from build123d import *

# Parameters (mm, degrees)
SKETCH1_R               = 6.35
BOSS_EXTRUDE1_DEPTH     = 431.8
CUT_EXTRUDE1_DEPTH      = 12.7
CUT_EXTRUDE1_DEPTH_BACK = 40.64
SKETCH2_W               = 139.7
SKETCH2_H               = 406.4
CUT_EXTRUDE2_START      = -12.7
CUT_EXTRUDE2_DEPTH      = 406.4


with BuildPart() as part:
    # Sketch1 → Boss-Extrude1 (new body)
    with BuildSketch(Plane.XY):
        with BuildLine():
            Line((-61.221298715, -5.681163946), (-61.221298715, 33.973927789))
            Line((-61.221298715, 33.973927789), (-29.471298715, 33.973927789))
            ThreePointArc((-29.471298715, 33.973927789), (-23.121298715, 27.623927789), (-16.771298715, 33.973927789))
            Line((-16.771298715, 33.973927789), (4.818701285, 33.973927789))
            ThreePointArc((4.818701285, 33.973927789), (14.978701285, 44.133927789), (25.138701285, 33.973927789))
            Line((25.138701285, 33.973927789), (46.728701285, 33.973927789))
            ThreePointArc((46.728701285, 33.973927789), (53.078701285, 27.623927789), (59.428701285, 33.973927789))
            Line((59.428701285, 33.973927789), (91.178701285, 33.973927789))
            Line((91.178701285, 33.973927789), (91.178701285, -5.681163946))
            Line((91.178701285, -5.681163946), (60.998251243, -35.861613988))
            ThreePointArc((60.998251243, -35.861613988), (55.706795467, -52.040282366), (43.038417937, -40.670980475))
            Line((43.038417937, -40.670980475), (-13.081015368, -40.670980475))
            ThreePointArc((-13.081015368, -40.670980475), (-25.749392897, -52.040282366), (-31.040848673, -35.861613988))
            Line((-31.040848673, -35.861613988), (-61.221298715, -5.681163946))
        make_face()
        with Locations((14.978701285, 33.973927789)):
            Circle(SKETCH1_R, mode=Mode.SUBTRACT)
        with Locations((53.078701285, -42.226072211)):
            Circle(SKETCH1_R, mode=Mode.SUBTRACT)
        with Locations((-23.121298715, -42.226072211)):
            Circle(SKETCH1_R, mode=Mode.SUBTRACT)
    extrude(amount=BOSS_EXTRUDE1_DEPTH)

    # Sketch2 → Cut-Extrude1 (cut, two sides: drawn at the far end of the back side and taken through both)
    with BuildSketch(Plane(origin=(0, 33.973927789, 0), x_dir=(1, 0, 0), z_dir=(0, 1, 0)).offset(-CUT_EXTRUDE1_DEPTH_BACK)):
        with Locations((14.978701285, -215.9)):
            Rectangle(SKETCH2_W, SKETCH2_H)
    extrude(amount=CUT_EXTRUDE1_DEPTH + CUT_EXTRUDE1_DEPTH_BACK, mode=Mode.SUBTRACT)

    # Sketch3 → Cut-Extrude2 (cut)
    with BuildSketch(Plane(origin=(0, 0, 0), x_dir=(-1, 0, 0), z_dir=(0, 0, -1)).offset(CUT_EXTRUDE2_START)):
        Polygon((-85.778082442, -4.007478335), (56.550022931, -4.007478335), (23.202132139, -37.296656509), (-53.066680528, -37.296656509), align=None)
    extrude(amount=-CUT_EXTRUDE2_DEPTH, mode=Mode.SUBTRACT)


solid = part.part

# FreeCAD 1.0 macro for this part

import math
import FreeCAD as App
import Part
import Sketcher
from FreeCAD import Vector
Q = App.Units.Quantity


def add_polygon(sketch, points):
    """Adds a closed chain of lines whose ends are joined by coincident constraints."""
    first, n = sketch.GeometryCount, len(points)
    for a, b in zip(points, points[1:] + points[:1]):
        sketch.addGeometry(Part.LineSegment(App.Vector(*a, 0), App.Vector(*b, 0)), False)
    for i in range(n):
        sketch.addConstraint(Sketcher.Constraint("Coincident", first + i, 2, first + (i + 1) % n, 1))

doc = App.newDocument("Part")
params = doc.addObject("Spreadsheet::Sheet", "Params")
for row, (alias, value) in enumerate([
    ("sketch1_diameter", "0.5 in"),
    ("sketch1_radius", "0.4 in"),
    ("pad1_length", "17 in"),
    ("sketch2_height", "16 in"),
    ("sketch2_width", "5.5 in"),
    ("pocket1_length", "0.5 in"),
    ("pocket1_length2", "1.6 in"),
    ("pocket2_length", "16 in"),
], start=1):
    params.set(f"A{row}", alias)
    params.set(f"B{row}", "=" + value)
    params.setAlias(f"B{row}", alias)

body = doc.addObject("PartDesign::Body", "Body")

sketch1 = body.newObject("Sketcher::SketchObject", "Sketch")
sketch1.AttachmentSupport = (doc.getObject("XY_Plane"), [""])
sketch1.MapMode = "FlatFace"
sketch1.addGeometry(Part.LineSegment(Vector(-61, 34, 0), Vector(-61, -6, 0)), False)
sketch1.addGeometry(Part.LineSegment(Vector(-61, -6, 0), Vector(-31, -36, 0)), False)
sketch1.addGeometry(Part.ArcOfCircle(Part.Circle(Vector(-23, -42, 0), Vector(0, 0, 1), 10), math.radians(141), math.radians(369)), False)
sketch1.addGeometry(Part.LineSegment(Vector(-13, -41, 0), Vector(43, -41, 0)), False)
sketch1.addGeometry(Part.ArcOfCircle(Part.Circle(Vector(53, -42, 0), Vector(0, 0, 1), 10), math.radians(171), math.radians(399)), False)
sketch1.addGeometry(Part.LineSegment(Vector(61, -36, 0), Vector(91, -6, 0)), False)
sketch1.addGeometry(Part.LineSegment(Vector(91, -6, 0), Vector(91, 34, 0)), False)
sketch1.addGeometry(Part.LineSegment(Vector(91, 34, 0), Vector(59, 34, 0)), False)
sketch1.addGeometry(Part.ArcOfCircle(Part.Circle(Vector(53, 34, 0), Vector(0, 0, 1), 6), math.radians(180), math.radians(360)), False)
sketch1.addGeometry(Part.LineSegment(Vector(47, 34, 0), Vector(25, 34, 0)), False)
sketch1.addGeometry(Part.ArcOfCircle(Part.Circle(Vector(15, 34, 0), Vector(0, 0, 1), 10), math.radians(0), math.radians(180)), False)
sketch1.addGeometry(Part.LineSegment(Vector(5, 34, 0), Vector(-17, 34, 0)), False)
sketch1.addGeometry(Part.ArcOfCircle(Part.Circle(Vector(-23, 34, 0), Vector(0, 0, 1), 6), math.radians(180), math.radians(360)), False)
sketch1.addGeometry(Part.LineSegment(Vector(-29, 34, 0), Vector(-61, 34, 0)), False)
sketch1.addGeometry(Part.Circle(Vector(53, -42, 0), Vector(0, 0, 1), 6), False)
sketch1.addGeometry(Part.Circle(Vector(-23, -42, 0), Vector(0, 0, 1), 6), False)
sketch1.addGeometry(Part.Circle(Vector(15, 34, 0), Vector(0, 0, 1), 6), False)
sketch1.addConstraint(Sketcher.Constraint("Coincident", 0, 2, 1, 1))
sketch1.addConstraint(Sketcher.Constraint("Coincident", 1, 2, 2, 1))
sketch1.addConstraint(Sketcher.Constraint("Coincident", 2, 2, 3, 1))
sketch1.addConstraint(Sketcher.Constraint("Coincident", 3, 2, 4, 1))
sketch1.addConstraint(Sketcher.Constraint("Coincident", 4, 2, 5, 1))
sketch1.addConstraint(Sketcher.Constraint("Coincident", 5, 2, 6, 1))
sketch1.addConstraint(Sketcher.Constraint("Coincident", 6, 2, 7, 1))
sketch1.addConstraint(Sketcher.Constraint("Coincident", 7, 2, 8, 2))
sketch1.addConstraint(Sketcher.Constraint("Coincident", 8, 1, 9, 1))
sketch1.addConstraint(Sketcher.Constraint("Coincident", 9, 2, 10, 1))
sketch1.addConstraint(Sketcher.Constraint("Coincident", 10, 2, 11, 1))
sketch1.addConstraint(Sketcher.Constraint("Coincident", 11, 2, 12, 2))
sketch1.addConstraint(Sketcher.Constraint("Coincident", 12, 1, 13, 1))
sketch1.addConstraint(Sketcher.Constraint("Coincident", 13, 2, 0, 1))
sketch1.addConstraint(Sketcher.Constraint("Vertical", 0))
sketch1.addConstraint(Sketcher.Constraint("Horizontal", 3))
sketch1.addConstraint(Sketcher.Constraint("Vertical", 6))
sketch1.addConstraint(Sketcher.Constraint("Horizontal", 7))
sketch1.addConstraint(Sketcher.Constraint("Horizontal", 9))
sketch1.addConstraint(Sketcher.Constraint("Horizontal", 11))
sketch1.addConstraint(Sketcher.Constraint("Horizontal", 13))
sketch1.addConstraint(Sketcher.Constraint("Coincident", 14, 3, 4, 3))
sketch1.addConstraint(Sketcher.Constraint("Coincident", 15, 3, 2, 3))
sketch1.addConstraint(Sketcher.Constraint("Coincident", 16, 3, 10, 3))
sketch1.addConstraint(Sketcher.Constraint("Equal", 2, 4))
sketch1.addConstraint(Sketcher.Constraint("Equal", 4, 10))
sketch1.addConstraint(Sketcher.Constraint("Equal", 8, 12))
sketch1.addConstraint(Sketcher.Constraint("Equal", 12, 14))
sketch1.addConstraint(Sketcher.Constraint("Equal", 14, 15))
sketch1.addConstraint(Sketcher.Constraint("Equal", 15, 16))
sketch1.addConstraint(Sketcher.Constraint("Perpendicular", 1, 5))
sketch1.addConstraint(Sketcher.Constraint("Horizontal", 2, 3, 4, 3))
sketch1.addConstraint(Sketcher.Constraint("Horizontal", 8, 3, 10, 3))
sketch1.addConstraint(Sketcher.Constraint("Horizontal", 10, 3, 12, 3))
sketch1.addConstraint(Sketcher.Constraint("Horizontal", 1, 2, 4, 2))
sketch1.addConstraint(Sketcher.Constraint("Horizontal", 0, 2, 5, 2))
sketch1.addConstraint(Sketcher.Constraint("Horizontal", 16, 3, 6, 2))
sketch1.addConstraint(Sketcher.Constraint("Horizontal", 7, 2, 8, 1))
sketch1.addConstraint(Sketcher.Constraint("Horizontal", 9, 2, 10, 2))
sketch1.addConstraint(Sketcher.Constraint("Horizontal", 11, 2, 12, 1))
sketch1.addConstraint(Sketcher.Constraint("Vertical", 4, 3, 8, 3))
sketch1.addConstraint(Sketcher.Constraint("Vertical", 2, 3, 12, 3))
sketch1.addConstraint(Sketcher.Constraint("Equal", 9, 11))
sketch1.addConstraint(Sketcher.Constraint("Equal", 7, 13))
sketch1.addConstraint(Sketcher.Constraint("Diameter", 14, Q("0.5 in")))
sketch1.addConstraint(Sketcher.Constraint("Radius", 2, Q("0.4 in")))
sketch1.addConstraint(Sketcher.Constraint("DistanceX", 2, 3, 4, 3, Q("3 in")))
sketch1.addConstraint(Sketcher.Constraint("DistanceY", 4, 3, 8, 3, Q("3 in")))
sketch1.addConstraint(Sketcher.Constraint("DistanceX", 0, 2, 10, 3, Q("3 in")))
sketch1.addConstraint(Sketcher.Constraint("Distance", 1, Q("42.681602 mm")))
sketch1.addConstraint(Sketcher.Constraint("DistanceX", 2, 3, -1, 1, Q("23.121299 mm")))
sketch1.addConstraint(Sketcher.Constraint("DistanceX", 3, 1, 3, 2, Q("56.119433 mm")))
sketch1.addConstraint(Sketcher.Constraint("DistanceY", 2, 2, -1, 1, Q("40.67098 mm")))
sketch1.setExpression("Constraints[44]", "Params.sketch1_diameter")
sketch1.setExpression("Constraints[45]", "Params.sketch1_radius")
pad1 = body.newObject("PartDesign::Pad", "Pad")
pad1.Profile = sketch1
pad1.setExpression("Length", "Params.pad1_length")

sketch2 = body.newObject("Sketcher::SketchObject", "Sketch001")
sketch2.AttachmentSupport = (doc.getObject("XZ_Plane"), [""])
sketch2.MapMode = "FlatFace"
sketch2.AttachmentOffset = App.Placement(Vector(0, 0, -33.973928), App.Rotation())
add_polygon(sketch2, [(-55, 13), (-55, 419), (85, 419), (85, 13)])
sketch2.addConstraint(Sketcher.Constraint("Vertical", 0))
sketch2.addConstraint(Sketcher.Constraint("Horizontal", 1))
sketch2.addConstraint(Sketcher.Constraint("Vertical", 2))
sketch2.addConstraint(Sketcher.Constraint("Horizontal", 3))
sketch2.addConstraint(Sketcher.Constraint("DistanceY", 0, 1, 0, 2, Q("16 in")))
sketch2.addConstraint(Sketcher.Constraint("DistanceX", 1, 1, 1, 2, Q("5.5 in")))
sketch2.addConstraint(Sketcher.Constraint("DistanceY", -1, 1, 0, 2, Q("16.5 in")))
sketch2.addConstraint(Sketcher.Constraint("DistanceX", 0, 2, -1, 1, Q("54.871299 mm")))
sketch2.setExpression("Constraints[8]", "Params.sketch2_height")
sketch2.setExpression("Constraints[9]", "Params.sketch2_width")
pocket1 = body.newObject("PartDesign::Pocket", "Pocket")
pocket1.Profile = sketch2
pocket1.Type = "TwoLengths"
pocket1.setExpression("Length", "Params.pocket1_length")
pocket1.setExpression("Length2", "Params.pocket1_length2")

sketch3 = body.newObject("Sketcher::SketchObject", "Sketch002")
sketch3.AttachmentSupport = (doc.getObject("XY_Plane"), [""])
sketch3.MapMode = "FlatFace"
sketch3.AttachmentOffset = App.Placement(Vector(0, 0, 0.5 * 25.4), App.Rotation())
add_polygon(sketch3, [(-57, -4), (86, -4), (53, -37), (-23, -37)])
sketch3.addConstraint(Sketcher.Constraint("Horizontal", 0))
sketch3.addConstraint(Sketcher.Constraint("Horizontal", 2))
sketch3.addConstraint(Sketcher.Constraint("Distance", 3, Q("1.8551001 in")))
sketch3.addConstraint(Sketcher.Constraint("DistanceX", 1, 2, 0, 2, Q("32.711402 mm")))
sketch3.addConstraint(Sketcher.Constraint("DistanceX", 0, 1, 0, 2, Q("142.328105 mm")))
sketch3.addConstraint(Sketcher.Constraint("DistanceX", 2, 2, 2, 1, Q("76.268813 mm")))
sketch3.addConstraint(Sketcher.Constraint("DistanceY", 0, 2, -1, 1, Q("4.007478 mm")))
sketch3.addConstraint(Sketcher.Constraint("DistanceX", -1, 1, 1, 2, Q("53.066681 mm")))
pocket2 = body.newObject("PartDesign::Pocket", "Pocket001")
pocket2.Profile = sketch3
pocket2.setExpression("Length", "Params.pocket2_length")
pocket2.Reversed = True

doc.recompute()
